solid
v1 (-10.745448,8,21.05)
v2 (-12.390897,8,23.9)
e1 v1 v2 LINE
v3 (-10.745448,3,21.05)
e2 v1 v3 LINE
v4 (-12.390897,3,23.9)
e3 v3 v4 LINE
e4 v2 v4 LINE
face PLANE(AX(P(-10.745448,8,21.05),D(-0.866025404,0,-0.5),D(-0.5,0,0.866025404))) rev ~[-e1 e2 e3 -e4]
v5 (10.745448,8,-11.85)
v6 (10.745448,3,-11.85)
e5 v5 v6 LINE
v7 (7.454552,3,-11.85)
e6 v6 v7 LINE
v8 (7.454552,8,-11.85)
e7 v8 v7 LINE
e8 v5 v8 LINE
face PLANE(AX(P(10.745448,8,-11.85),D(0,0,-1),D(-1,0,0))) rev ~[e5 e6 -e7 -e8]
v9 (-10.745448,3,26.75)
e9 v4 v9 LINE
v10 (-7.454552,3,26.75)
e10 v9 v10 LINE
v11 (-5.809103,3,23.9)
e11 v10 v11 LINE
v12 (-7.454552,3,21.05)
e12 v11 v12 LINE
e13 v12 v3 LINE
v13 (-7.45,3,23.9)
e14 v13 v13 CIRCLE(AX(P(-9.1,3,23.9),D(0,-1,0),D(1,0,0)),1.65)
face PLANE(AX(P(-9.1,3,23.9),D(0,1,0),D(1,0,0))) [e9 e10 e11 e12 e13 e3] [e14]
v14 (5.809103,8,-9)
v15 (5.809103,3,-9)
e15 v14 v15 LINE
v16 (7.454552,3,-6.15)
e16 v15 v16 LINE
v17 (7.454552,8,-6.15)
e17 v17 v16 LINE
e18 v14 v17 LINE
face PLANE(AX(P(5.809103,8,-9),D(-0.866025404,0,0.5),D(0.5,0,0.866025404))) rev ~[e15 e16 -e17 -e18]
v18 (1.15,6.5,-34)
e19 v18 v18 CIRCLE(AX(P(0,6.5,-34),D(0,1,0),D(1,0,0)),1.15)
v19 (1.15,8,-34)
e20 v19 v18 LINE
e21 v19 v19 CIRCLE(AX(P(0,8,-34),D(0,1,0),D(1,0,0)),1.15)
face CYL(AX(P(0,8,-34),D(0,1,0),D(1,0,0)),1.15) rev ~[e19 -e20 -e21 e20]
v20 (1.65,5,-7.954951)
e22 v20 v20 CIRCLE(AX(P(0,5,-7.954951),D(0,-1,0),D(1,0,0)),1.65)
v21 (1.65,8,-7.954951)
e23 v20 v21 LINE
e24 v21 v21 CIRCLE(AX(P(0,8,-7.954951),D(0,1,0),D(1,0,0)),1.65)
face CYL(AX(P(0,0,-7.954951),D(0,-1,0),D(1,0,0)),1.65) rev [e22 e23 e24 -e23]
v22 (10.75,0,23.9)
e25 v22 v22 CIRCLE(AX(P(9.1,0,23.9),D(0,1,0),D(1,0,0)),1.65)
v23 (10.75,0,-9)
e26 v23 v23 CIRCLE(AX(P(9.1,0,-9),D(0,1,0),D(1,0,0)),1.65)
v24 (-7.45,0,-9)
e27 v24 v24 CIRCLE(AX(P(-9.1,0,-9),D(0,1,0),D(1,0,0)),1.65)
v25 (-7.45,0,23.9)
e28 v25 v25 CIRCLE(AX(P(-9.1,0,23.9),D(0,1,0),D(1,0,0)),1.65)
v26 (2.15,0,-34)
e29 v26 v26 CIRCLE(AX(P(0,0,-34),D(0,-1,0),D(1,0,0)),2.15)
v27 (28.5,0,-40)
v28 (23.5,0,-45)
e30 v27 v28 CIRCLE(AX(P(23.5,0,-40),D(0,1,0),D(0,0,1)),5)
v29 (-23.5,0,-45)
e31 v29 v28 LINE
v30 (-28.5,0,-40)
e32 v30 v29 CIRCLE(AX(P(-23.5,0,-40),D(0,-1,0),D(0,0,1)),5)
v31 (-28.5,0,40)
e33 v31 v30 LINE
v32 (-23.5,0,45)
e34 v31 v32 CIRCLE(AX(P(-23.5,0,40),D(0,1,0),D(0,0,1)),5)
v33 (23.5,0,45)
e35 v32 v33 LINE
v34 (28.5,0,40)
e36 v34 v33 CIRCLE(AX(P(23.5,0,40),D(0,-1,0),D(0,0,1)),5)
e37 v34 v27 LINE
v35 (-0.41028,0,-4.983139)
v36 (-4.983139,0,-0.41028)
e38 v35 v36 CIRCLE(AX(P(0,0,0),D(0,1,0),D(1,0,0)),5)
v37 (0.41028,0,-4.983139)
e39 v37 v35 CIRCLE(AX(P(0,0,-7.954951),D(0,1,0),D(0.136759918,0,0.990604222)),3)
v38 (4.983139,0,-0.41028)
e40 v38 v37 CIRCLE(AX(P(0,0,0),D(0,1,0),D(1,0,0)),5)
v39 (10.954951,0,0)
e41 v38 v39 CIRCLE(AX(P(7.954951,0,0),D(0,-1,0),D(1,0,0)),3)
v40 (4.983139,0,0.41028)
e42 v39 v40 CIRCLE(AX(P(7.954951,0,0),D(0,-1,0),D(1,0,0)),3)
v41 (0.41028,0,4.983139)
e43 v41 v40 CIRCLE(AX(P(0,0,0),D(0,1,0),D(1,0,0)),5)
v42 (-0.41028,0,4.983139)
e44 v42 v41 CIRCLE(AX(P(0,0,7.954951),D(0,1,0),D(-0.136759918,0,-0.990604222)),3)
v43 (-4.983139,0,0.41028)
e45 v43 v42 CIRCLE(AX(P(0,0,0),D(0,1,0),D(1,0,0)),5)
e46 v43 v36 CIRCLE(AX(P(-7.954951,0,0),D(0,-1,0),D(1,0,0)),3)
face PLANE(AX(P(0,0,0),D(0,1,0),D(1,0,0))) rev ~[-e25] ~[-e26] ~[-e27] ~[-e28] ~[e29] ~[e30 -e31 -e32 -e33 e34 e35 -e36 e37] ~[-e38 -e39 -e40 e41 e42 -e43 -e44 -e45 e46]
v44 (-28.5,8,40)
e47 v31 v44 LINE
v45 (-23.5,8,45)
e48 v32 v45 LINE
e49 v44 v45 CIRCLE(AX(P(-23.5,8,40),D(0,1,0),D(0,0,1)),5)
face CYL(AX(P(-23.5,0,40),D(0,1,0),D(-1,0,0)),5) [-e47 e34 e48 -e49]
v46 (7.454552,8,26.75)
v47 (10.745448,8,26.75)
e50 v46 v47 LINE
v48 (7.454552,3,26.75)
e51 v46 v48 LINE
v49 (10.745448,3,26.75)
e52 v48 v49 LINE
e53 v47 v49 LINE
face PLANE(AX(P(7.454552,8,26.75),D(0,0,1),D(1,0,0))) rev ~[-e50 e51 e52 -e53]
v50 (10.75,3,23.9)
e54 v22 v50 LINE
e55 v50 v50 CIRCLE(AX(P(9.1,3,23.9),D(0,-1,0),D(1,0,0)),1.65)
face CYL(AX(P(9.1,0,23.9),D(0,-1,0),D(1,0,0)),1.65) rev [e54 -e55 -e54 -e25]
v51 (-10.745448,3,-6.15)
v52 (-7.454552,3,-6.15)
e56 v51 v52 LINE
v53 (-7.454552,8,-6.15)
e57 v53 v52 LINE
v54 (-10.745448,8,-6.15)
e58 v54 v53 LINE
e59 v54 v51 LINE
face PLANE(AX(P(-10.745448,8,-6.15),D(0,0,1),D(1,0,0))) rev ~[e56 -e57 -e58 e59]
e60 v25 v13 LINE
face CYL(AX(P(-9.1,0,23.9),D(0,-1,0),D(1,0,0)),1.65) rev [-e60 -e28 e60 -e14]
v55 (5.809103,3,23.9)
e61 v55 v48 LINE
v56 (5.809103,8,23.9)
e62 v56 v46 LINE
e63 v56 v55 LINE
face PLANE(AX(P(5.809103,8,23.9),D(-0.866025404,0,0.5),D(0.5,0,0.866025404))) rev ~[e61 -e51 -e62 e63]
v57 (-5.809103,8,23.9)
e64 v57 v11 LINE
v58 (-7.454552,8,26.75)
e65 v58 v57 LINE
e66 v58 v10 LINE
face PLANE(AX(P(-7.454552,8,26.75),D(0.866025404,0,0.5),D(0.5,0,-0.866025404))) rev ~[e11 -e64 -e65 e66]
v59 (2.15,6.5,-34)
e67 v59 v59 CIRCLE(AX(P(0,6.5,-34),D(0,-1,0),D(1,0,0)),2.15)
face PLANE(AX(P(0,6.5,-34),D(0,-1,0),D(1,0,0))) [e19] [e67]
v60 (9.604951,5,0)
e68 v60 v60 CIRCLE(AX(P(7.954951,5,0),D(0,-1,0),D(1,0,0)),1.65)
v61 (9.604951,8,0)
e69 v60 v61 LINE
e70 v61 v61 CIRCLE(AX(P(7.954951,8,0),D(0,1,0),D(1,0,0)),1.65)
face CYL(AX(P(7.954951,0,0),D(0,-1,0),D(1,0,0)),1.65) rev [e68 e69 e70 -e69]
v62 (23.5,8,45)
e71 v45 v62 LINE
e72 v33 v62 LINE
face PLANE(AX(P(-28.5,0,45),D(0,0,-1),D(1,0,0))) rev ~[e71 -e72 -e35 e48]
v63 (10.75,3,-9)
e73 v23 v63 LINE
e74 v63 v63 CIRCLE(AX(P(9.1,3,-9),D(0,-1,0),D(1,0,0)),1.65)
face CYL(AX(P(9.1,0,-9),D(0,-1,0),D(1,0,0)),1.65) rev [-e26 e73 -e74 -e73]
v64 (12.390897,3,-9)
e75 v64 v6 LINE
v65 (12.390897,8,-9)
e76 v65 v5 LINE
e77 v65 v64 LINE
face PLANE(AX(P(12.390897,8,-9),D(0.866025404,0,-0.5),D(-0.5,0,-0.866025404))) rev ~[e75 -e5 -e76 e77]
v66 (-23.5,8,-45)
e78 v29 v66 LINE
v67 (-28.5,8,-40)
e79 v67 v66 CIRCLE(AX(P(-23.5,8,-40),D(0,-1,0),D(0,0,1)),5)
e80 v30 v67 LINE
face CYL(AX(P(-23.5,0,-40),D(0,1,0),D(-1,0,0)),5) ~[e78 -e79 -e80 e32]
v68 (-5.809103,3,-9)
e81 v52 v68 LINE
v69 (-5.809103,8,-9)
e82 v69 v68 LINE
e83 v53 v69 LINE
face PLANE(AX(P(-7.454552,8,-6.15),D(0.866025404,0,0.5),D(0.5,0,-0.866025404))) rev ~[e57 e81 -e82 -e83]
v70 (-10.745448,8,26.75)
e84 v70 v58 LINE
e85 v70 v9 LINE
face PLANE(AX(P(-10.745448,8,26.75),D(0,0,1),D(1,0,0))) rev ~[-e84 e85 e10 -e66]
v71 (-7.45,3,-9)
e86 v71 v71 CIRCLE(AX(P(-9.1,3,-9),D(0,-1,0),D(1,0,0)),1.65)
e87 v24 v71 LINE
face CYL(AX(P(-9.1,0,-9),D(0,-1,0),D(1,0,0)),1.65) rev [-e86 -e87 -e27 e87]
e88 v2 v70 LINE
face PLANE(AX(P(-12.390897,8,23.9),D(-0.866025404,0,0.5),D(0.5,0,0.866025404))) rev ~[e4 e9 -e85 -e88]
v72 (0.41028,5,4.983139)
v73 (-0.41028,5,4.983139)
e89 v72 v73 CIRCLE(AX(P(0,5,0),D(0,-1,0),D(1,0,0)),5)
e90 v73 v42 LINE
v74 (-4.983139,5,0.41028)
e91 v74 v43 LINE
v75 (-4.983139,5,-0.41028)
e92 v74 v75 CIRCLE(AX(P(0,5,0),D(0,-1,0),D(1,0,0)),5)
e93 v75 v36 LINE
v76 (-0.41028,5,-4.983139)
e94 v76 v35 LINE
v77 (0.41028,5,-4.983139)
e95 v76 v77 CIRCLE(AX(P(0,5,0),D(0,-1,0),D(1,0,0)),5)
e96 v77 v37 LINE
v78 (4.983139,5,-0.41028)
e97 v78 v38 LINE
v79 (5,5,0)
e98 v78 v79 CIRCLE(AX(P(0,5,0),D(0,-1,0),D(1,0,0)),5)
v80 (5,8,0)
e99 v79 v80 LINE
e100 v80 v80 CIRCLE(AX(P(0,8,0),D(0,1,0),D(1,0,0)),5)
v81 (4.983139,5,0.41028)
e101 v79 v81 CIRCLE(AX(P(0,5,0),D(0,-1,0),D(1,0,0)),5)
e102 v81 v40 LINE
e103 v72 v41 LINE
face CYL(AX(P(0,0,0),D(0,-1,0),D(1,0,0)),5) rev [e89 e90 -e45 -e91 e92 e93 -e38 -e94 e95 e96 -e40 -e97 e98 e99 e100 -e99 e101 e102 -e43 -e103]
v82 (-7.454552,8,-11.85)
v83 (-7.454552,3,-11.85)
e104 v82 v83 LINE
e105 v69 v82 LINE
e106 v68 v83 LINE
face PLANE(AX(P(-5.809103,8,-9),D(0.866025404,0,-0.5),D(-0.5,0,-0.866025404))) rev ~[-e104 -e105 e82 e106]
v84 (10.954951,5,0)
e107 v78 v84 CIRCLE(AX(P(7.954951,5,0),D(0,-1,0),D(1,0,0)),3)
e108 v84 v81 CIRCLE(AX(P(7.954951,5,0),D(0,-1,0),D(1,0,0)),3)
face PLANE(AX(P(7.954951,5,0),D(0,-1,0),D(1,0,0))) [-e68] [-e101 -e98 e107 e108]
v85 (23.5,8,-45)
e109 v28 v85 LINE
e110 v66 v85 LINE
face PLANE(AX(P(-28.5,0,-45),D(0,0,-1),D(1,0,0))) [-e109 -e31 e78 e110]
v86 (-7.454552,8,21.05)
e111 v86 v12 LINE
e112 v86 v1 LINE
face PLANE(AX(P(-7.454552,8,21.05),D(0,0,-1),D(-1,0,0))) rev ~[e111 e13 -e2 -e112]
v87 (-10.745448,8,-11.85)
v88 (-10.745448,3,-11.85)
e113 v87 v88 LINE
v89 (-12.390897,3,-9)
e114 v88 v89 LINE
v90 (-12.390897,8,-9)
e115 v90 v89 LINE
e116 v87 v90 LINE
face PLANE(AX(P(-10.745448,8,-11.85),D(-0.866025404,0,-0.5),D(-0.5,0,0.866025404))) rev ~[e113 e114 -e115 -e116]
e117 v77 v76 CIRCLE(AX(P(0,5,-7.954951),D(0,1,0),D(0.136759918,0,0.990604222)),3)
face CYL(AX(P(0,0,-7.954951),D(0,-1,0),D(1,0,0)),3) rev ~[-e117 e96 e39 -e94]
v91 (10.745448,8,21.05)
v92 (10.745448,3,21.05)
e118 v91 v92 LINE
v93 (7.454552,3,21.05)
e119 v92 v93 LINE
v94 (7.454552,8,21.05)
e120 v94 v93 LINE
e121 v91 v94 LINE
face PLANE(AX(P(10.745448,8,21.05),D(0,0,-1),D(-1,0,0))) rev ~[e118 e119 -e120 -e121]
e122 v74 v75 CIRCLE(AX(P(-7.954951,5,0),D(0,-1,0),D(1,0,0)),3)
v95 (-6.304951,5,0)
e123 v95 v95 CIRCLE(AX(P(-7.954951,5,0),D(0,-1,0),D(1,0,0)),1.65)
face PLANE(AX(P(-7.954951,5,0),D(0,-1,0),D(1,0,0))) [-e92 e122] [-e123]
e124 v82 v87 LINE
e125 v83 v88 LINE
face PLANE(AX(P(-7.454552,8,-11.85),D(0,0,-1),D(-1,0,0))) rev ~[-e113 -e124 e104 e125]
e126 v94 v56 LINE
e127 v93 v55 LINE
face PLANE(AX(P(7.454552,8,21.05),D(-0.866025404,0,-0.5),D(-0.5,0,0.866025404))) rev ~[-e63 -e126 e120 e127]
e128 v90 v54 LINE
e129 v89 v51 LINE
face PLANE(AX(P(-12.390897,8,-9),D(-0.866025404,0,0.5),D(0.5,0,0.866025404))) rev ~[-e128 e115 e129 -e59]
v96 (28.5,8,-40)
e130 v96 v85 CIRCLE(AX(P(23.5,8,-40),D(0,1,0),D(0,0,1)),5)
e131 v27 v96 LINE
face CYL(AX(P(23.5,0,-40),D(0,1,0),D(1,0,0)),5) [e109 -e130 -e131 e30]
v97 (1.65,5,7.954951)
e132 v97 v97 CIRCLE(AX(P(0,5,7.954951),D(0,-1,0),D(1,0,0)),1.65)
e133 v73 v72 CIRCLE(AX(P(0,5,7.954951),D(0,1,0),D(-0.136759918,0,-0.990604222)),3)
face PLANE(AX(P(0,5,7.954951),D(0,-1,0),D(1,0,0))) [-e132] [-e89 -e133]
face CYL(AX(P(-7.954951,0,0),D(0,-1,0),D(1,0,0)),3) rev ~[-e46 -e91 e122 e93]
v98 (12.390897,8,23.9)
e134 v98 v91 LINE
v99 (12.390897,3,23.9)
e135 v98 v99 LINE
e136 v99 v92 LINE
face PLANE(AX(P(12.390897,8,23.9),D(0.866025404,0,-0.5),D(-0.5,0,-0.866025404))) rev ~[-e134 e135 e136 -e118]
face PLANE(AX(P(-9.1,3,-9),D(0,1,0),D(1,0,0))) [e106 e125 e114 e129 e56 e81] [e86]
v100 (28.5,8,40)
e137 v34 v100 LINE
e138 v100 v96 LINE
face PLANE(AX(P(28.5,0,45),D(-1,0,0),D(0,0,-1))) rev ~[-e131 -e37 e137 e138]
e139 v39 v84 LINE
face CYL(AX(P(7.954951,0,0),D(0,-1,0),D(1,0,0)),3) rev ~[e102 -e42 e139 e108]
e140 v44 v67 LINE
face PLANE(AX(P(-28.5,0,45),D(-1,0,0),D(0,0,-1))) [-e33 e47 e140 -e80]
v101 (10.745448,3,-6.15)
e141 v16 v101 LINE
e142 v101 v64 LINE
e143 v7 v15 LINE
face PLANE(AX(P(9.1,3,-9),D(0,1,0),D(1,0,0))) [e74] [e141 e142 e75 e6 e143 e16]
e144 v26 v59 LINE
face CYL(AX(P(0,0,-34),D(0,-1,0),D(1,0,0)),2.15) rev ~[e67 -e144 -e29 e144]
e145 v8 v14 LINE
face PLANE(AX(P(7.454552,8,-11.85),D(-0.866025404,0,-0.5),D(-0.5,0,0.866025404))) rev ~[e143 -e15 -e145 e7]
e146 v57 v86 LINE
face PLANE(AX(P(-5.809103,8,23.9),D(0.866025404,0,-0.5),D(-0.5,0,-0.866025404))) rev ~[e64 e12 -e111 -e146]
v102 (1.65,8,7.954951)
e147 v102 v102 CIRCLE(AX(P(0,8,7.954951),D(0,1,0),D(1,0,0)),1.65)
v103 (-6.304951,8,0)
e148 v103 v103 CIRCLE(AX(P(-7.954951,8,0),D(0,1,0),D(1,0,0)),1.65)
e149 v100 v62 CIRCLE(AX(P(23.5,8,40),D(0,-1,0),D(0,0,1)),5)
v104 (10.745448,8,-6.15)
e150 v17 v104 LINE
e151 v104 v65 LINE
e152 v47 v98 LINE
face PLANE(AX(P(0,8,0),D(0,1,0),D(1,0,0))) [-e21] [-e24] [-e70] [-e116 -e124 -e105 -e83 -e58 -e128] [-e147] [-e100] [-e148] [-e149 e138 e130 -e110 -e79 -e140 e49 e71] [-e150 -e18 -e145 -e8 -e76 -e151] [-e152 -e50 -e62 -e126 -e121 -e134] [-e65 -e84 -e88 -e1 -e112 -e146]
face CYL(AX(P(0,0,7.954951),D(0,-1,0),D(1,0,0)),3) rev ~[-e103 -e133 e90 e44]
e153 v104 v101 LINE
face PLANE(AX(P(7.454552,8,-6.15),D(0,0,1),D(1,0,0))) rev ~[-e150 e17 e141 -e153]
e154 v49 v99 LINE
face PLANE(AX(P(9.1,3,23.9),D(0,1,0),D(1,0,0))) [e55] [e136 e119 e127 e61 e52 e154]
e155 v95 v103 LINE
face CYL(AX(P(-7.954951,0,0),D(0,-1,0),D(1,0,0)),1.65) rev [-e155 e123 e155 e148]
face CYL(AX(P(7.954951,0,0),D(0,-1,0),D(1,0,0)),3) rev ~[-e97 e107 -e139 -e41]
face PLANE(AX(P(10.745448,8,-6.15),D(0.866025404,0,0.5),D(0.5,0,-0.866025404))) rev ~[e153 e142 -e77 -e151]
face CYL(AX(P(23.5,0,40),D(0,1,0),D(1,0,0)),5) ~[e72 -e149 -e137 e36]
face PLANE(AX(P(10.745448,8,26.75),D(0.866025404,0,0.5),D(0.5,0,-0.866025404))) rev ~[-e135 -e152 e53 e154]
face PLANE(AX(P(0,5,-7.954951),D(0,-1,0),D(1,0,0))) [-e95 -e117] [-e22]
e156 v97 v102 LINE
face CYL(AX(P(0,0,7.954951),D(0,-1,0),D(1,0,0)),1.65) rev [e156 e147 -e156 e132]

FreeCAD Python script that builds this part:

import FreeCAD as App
import Part
import Sketcher

V = App.Vector
Q = App.Units.Quantity


def edges_at(feature, points):
    """Names of the edges that pass closest to the given points."""
    edges = feature.Shape.Edges
    near = lambda p: min(range(len(edges)), key=lambda i: edges[i].distToShape(Part.Vertex(*p))[0])
    return sorted({f"Edge{near(p) + 1}" for p in points})


def add_polygon(sketch, points):
    """Adds a closed chain of lines whose ends are joined by coincident constraints."""
    first, n = sketch.GeometryCount, len(points)
    for a, b in zip(points, points[1:] + points[:1]):
        sketch.addGeometry(Part.LineSegment(App.Vector(*a, 0), App.Vector(*b, 0)), False)
    for i in range(n):
        sketch.addConstraint(Sketcher.Constraint("Coincident", first + i, 2, first + (i + 1) % n, 1))

doc = App.newDocument("Part")
body = doc.addObject("PartDesign::Body", "Body")

# Sketch on XZ plane
sketch1 = body.newObject("Sketcher::SketchObject", "Sketch")
sketch1.AttachmentSupport = (doc.getObject("XZ_Plane"), [""])
sketch1.MapMode = "FlatFace"
add_polygon(sketch1, [(-28.5, -45), (-28.5, 45), (28.5, 45), (28.5, -45)])  # lines 0-3
sketch1.addGeometry(Part.Circle(V(-9.1, 23.9, 0), V(0, 0, 1), 1.6), False)  # 4
sketch1.addGeometry(Part.Circle(V(9.1, 23.9, 0), V(0, 0, 1), 1.6), False)  # 5
sketch1.addGeometry(Part.Circle(V(0, 8, 0), V(0, 0, 1), 1.6), False)  # 6
sketch1.addGeometry(Part.Circle(V(-8, 0, 0), V(0, 0, 1), 1.6), False)  # 7
sketch1.addGeometry(Part.Circle(V(-9.1, -9, 0), V(0, 0, 1), 1.6), False)  # 8
sketch1.addGeometry(Part.Circle(V(0, 0, 0), V(0, 0, 1), 5), False)  # 9
sketch1.addGeometry(Part.Circle(V(8, 0, 0), V(0, 0, 1), 1.6), False)  # 10
sketch1.addGeometry(Part.Circle(V(0, -8, 0), V(0, 0, 1), 1.6), False)  # 11
sketch1.addGeometry(Part.Circle(V(9.1, -9, 0), V(0, 0, 1), 1.6), False)  # 12
sketch1.addConstraint([
    Sketcher.Constraint("Vertical", 0),
    Sketcher.Constraint("Horizontal", 1),
    Sketcher.Constraint("Vertical", 2),
    Sketcher.Constraint("Horizontal", 3),
    Sketcher.Constraint("Coincident", 9, 3, -1, 1),
    Sketcher.Constraint("Equal", 4, 5),
    Sketcher.Constraint("Equal", 5, 6),
    Sketcher.Constraint("Equal", 6, 7),
    Sketcher.Constraint("Equal", 7, 8),
    Sketcher.Constraint("Equal", 8, 10),
    Sketcher.Constraint("Equal", 10, 11),
    Sketcher.Constraint("Equal", 11, 12),
    Sketcher.Constraint("Symmetric", 7, 3, 10, 3, -1, 1),
    Sketcher.Constraint("Symmetric", 6, 3, 11, 3, -1, 1),
    Sketcher.Constraint("Symmetric", 0, 2, 2, 2, -1, 1),
    Sketcher.Constraint("Symmetric", 4, 3, 5, 3, -2),
    Sketcher.Constraint("Symmetric", 8, 3, 12, 3, -2),
    Sketcher.Constraint("PointOnObject", 6, 3, -2),
    Sketcher.Constraint("PointOnObject", 7, 3, -1),
    Sketcher.Constraint("Vertical", 4, 3, 8, 3),
    Sketcher.Constraint("Diameter", 9, Q("10 mm")),
    Sketcher.Constraint("Diameter", 4, Q("3.3 mm")),
    Sketcher.Constraint("DistanceX", 1, 1, 1, 2, Q("57 mm")),
    Sketcher.Constraint("DistanceY", 0, 1, 0, 2, Q("90 mm")),
    Sketcher.Constraint("DistanceY", 8, 3, -1, 1, Q("9 mm")),
    Sketcher.Constraint("DistanceX", 4, 3, -1, 1, Q("9.1 mm")),
    Sketcher.Constraint("DistanceY", -1, 1, 4, 3, Q("23.9 mm")),
    Sketcher.Constraint("DistanceY", -1, 1, 6, 3, Q("7.954951 mm")),
    Sketcher.Constraint("DistanceX", 7, 3, -1, 1, Q("7.954951 mm")),
])
pad1 = body.newObject("PartDesign::Pad", "Pad")
pad1.Profile = sketch1
pad1.Length = 8
pad1.Reversed = True

# Sketch on XZ plane
sketch2 = body.newObject("Sketcher::SketchObject", "Sketch001")
sketch2.AttachmentSupport = (doc.getObject("XZ_Plane"), [""])
sketch2.MapMode = "FlatFace"
sketch2.AttachmentOffset = App.Placement(V(0, 0, -8), App.Rotation())
add_polygon(sketch2, [(-7.5, -11.8), (-10.7, -11.8), (-12.4, -9), (-10.7, -6.2), (-7.5, -6.2), (-5.8, -9)])  # lines 0-5
add_polygon(sketch2, [(10.7, -11.8), (7.5, -11.8), (5.8, -9), (7.5, -6.2), (10.7, -6.2), (12.4, -9)])  # lines 6-11
add_polygon(sketch2, [(10.7, 21.1), (7.5, 21.1), (5.8, 23.9), (7.5, 26.8), (10.7, 26.8), (12.4, 23.9)])  # lines 12-17
add_polygon(sketch2, [(-10.7, 21.1), (-12.4, 23.9), (-10.7, 26.8), (-7.5, 26.8), (-5.8, 23.9), (-7.5, 21.1)])  # lines 18-23
sketch2.addConstraint([
    Sketcher.Constraint("Horizontal", 0),
    Sketcher.Constraint("Horizontal", 3),
    Sketcher.Constraint("Horizontal", 6),
    Sketcher.Constraint("Horizontal", 9),
    Sketcher.Constraint("Horizontal", 12),
    Sketcher.Constraint("Horizontal", 15),
    Sketcher.Constraint("Horizontal", 20),
    Sketcher.Constraint("Horizontal", 23),
    Sketcher.Constraint("Symmetric", 5, 2, 6, 2, -2),
    Sketcher.Constraint("Symmetric", 4, 2, 7, 2, -2),
    Sketcher.Constraint("Symmetric", 3, 2, 8, 2, -2),
    Sketcher.Constraint("Symmetric", 1, 2, 10, 2, -2),
    Sketcher.Constraint("Symmetric", 16, 2, 18, 2, -2),
    Sketcher.Constraint("Symmetric", 15, 2, 19, 2, -2),
    Sketcher.Constraint("Symmetric", 13, 2, 21, 2, -2),
    Sketcher.Constraint("Symmetric", 12, 2, 22, 2, -2),
    Sketcher.Constraint("Parallel", 1, 4),
    Sketcher.Constraint("Parallel", 2, 5),
    Sketcher.Constraint("Parallel", 4, 7),
    Sketcher.Constraint("Parallel", 7, 10),
    Sketcher.Constraint("Parallel", 8, 11),
    Sketcher.Constraint("Parallel", 10, 13),
    Sketcher.Constraint("Parallel", 11, 14),
    Sketcher.Constraint("Parallel", 13, 16),
    Sketcher.Constraint("Parallel", 14, 17),
    Sketcher.Constraint("Parallel", 16, 18),
    Sketcher.Constraint("Parallel", 18, 21),
    Sketcher.Constraint("Horizontal", 1, 2, 4, 2),
    Sketcher.Constraint("Horizontal", 13, 2, 16, 2),
    Sketcher.Constraint("Vertical", 0, 2, 2, 2),
    Sketcher.Constraint("Vertical", 8, 2, 12, 2),
    Sketcher.Constraint("Vertical", 7, 2, 13, 2),
    Sketcher.Constraint("Vertical", 12, 2, 14, 2),
    Sketcher.Constraint("Vertical", 11, 2, 15, 2),
    Sketcher.Constraint("Angle", 1, Q("120 deg")),
    Sketcher.Constraint("DistanceY", 1, 2, -1, 1, Q("9 mm")),
    Sketcher.Constraint("DistanceY", -1, 1, 13, 2, Q("23.9 mm")),
    Sketcher.Constraint("DistanceY", 0, 2, 2, 2, Q("5.7 mm")),
    Sketcher.Constraint("DistanceX", 0, 2, 6, 2, Q("18.2 mm")),
    Sketcher.Constraint("DistanceX", 0, 2, 0, 1, Q("3.290897 mm")),
])
pocket1 = body.newObject("PartDesign::Pocket", "Pocket")
pocket1.Profile = sketch2
pocket1.Length = 5
pocket1.Reversed = True

# Sketch on XZ plane
sketch3 = body.newObject("Sketcher::SketchObject", "Sketch002")
sketch3.AttachmentSupport = (doc.getObject("XZ_Plane"), [""])
sketch3.MapMode = "FlatFace"
sketch3.addGeometry([
    Part.Circle(V(0, 8, 0), V(0, 0, 1), 3),
    Part.Circle(V(8, 0, 0), V(0, 0, 1), 3),
    Part.Circle(V(0, -8, 0), V(0, 0, 1), 3),
    Part.Circle(V(-8, 0, 0), V(0, 0, 1), 3),
], False)
sketch3.addConstraint([
    Sketcher.Constraint("Equal", 0, 1),
    Sketcher.Constraint("Equal", 1, 2),
    Sketcher.Constraint("Equal", 2, 3),
    Sketcher.Constraint("Symmetric", 0, 3, 2, 3, -1, 1),
    Sketcher.Constraint("Symmetric", 1, 3, 3, 3, -1, 1),
    Sketcher.Constraint("PointOnObject", 0, 3, -2),
    Sketcher.Constraint("PointOnObject", 1, 3, -1),
    Sketcher.Constraint("Diameter", 0, Q("6 mm")),
    Sketcher.Constraint("DistanceY", -1, 1, 0, 3, Q("7.954951 mm")),
    Sketcher.Constraint("DistanceX", -1, 1, 1, 3, Q("7.954951 mm")),
])
pocket2 = body.newObject("PartDesign::Pocket", "Pocket001")
pocket2.Profile = sketch3
pocket2.Length = 5
doc.recompute()

fillet = body.newObject("PartDesign::Fillet", "Fillet")
fillet.Base = (pocket2, edges_at(pocket2, [
    (28.5, 4, 45),
    (-28.5, 4, 45),
    (-28.5, 4, -45),
    (28.5, 4, -45),
]))
fillet.Radius = 5

# Sketch on XZ plane
sketch4 = body.newObject("Sketcher::SketchObject", "Sketch003")
sketch4.AttachmentSupport = (doc.getObject("XZ_Plane"), [""])
sketch4.MapMode = "FlatFace"
sketch4.AttachmentOffset = App.Placement(V(0, 0, -8), App.Rotation())
sketch4.addGeometry(Part.Circle(V(0, -34, 0), V(0, 0, 1), 1.1), False)
sketch4.addConstraint([
    Sketcher.Constraint("PointOnObject", 0, 3, -2),
    Sketcher.Constraint("Diameter", 0, Q("2.3 mm")),
    Sketcher.Constraint("DistanceY", 0, 3, -1, 1, Q("34 mm")),
])
pocket3 = body.newObject("PartDesign::Pocket", "Pocket002")
pocket3.Profile = sketch4
pocket3.Type = "ThroughAll"
pocket3.Reversed = True

# Sketch on XZ plane
sketch5 = body.newObject("Sketcher::SketchObject", "Sketch004")
sketch5.AttachmentSupport = (doc.getObject("XZ_Plane"), [""])
sketch5.MapMode = "FlatFace"
sketch5.addGeometry(Part.Circle(V(0, -34, 0), V(0, 0, 1), 2.1), False)
sketch5.addConstraint([
    Sketcher.Constraint("PointOnObject", 0, 3, -2),
    Sketcher.Constraint("Diameter", 0, Q("4.3 mm")),
    Sketcher.Constraint("DistanceY", 0, 3, -1, 1, Q("34 mm")),
])
pocket4 = body.newObject("PartDesign::Pocket", "Pocket003")
pocket4.Profile = sketch5
pocket4.Length = 6.5

doc.recompute()
